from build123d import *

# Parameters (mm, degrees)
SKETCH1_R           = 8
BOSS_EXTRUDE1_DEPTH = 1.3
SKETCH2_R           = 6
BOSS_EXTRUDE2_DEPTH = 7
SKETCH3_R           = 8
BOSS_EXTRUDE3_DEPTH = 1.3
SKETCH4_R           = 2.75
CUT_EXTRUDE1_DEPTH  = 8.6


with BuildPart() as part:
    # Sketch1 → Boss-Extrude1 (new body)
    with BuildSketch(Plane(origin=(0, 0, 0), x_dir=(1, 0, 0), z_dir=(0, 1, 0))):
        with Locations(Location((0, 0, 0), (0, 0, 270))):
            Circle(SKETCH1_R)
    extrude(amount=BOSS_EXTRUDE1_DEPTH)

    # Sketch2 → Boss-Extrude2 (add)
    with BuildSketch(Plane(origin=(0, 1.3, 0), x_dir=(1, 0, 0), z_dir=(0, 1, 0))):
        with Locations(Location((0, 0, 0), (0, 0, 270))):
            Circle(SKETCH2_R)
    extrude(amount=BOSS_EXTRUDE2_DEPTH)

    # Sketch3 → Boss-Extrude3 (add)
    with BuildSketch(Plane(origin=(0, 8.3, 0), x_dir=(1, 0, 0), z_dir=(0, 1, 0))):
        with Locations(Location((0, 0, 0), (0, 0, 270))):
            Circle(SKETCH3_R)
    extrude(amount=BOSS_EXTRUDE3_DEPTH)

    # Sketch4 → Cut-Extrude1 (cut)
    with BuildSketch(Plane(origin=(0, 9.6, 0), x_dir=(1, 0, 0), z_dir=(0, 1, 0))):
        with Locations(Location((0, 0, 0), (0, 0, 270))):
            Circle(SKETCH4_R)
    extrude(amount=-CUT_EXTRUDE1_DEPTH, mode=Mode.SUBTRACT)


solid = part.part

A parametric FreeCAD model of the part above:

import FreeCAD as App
import Part
import Sketcher

V = App.Vector
Q = App.Units.Quantity

doc = App.newDocument("Part")
body = doc.addObject("PartDesign::Body", "Body")

sketch1 = doc.addObject("Sketcher::SketchObject", "Sketch")
body.addObject(sketch1)
sketch1.AttachmentSupport = (doc.XZ_Plane, [""])
sketch1.MapMode = "FlatFace"
sketch1.addGeometry(Part.Circle(V(0, 0, 0), V(0, 0, 1), 8), False)
sketch1.addConstraint(Sketcher.Constraint("Coincident", 0, 3, -1, 1))
sketch1.addConstraint(Sketcher.Constraint("Diameter", 0, Q("16 mm")))
pad1 = doc.addObject("PartDesign::Pad", "Pad")
body.addObject(pad1)
pad1.Profile = sketch1
pad1.Length = 1.3
pad1.Reversed = True

sketch2 = doc.addObject("Sketcher::SketchObject", "Sketch001")
body.addObject(sketch2)
sketch2.AttachmentSupport = (doc.XZ_Plane, [""])
sketch2.MapMode = "FlatFace"
sketch2.AttachmentOffset = App.Placement(V(0, 0, -1.3), App.Rotation())
sketch2.addGeometry(Part.Circle(V(0, 0, 0), V(0, 0, 1), 6), False)
sketch2.addConstraint(Sketcher.Constraint("Coincident", 0, 3, -1, 1))
sketch2.addConstraint(Sketcher.Constraint("Diameter", 0, Q("12 mm")))
pad2 = doc.addObject("PartDesign::Pad", "Pad001")
body.addObject(pad2)
pad2.Profile = sketch2
pad2.Length = 7
pad2.Reversed = True

sketch3 = doc.addObject("Sketcher::SketchObject", "Sketch002")
body.addObject(sketch3)
sketch3.AttachmentSupport = (doc.XZ_Plane, [""])
sketch3.MapMode = "FlatFace"
sketch3.AttachmentOffset = App.Placement(V(0, 0, -8.3), App.Rotation())
sketch3.addGeometry(Part.Circle(V(0, 0, 0), V(0, 0, 1), 8), False)
sketch3.addConstraint(Sketcher.Constraint("Coincident", 0, 3, -1, 1))
sketch3.addConstraint(Sketcher.Constraint("Diameter", 0, Q("16 mm")))
pad3 = doc.addObject("PartDesign::Pad", "Pad002")
body.addObject(pad3)
pad3.Profile = sketch3
pad3.Length = 1.3
pad3.Reversed = True

sketch4 = doc.addObject("Sketcher::SketchObject", "Sketch003")
body.addObject(sketch4)
sketch4.AttachmentSupport = (doc.XZ_Plane, [""])
sketch4.MapMode = "FlatFace"
sketch4.AttachmentOffset = App.Placement(V(0, 0, -9.6), App.Rotation())
sketch4.addGeometry(Part.Circle(V(0, 0, 0), V(0, 0, 1), 2.75), False)
sketch4.addConstraint(Sketcher.Constraint("Coincident", 0, 3, -1, 1))
sketch4.addConstraint(Sketcher.Constraint("Diameter", 0, Q("5.5 mm")))
pocket1 = doc.addObject("PartDesign::Pocket", "Pocket")
body.addObject(pocket1)
pocket1.Profile = sketch4
pocket1.Length = 8.6
pocket1.Reversed = True

doc.recompute()
